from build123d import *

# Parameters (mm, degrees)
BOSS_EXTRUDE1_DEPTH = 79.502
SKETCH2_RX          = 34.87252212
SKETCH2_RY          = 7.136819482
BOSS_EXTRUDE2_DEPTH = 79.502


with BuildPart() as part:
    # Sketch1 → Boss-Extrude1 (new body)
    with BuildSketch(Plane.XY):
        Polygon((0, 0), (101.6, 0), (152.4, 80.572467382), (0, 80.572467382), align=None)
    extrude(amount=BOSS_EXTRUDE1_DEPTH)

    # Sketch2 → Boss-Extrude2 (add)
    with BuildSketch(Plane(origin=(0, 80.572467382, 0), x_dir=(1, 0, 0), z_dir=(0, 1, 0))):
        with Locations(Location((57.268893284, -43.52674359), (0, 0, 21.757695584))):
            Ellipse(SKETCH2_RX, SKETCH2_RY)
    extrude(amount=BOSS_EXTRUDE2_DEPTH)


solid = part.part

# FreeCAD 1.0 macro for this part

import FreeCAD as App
import Part
import Sketcher

V = App.Vector
Q = App.Units.Quantity


def add_polygon(sketch, points):
    """Adds a closed chain of lines whose ends are joined by coincident constraints."""
    first, n = sketch.GeometryCount, len(points)
    for a, b in zip(points, points[1:] + points[:1]):
        sketch.addGeometry(Part.LineSegment(App.Vector(*a, 0), App.Vector(*b, 0)), False)
    for i in range(n):
        sketch.addConstraint(Sketcher.Constraint("Coincident", first + i, 2, first + (i + 1) % n, 1))

doc = App.newDocument("Part")
body = doc.addObject("PartDesign::Body", "Body")

sketch1 = body.newObject("Sketcher::SketchObject", "Sketch")
sketch1.AttachmentSupport = (doc.getObject("XY_Plane"), [""])
sketch1.MapMode = "FlatFace"
add_polygon(sketch1, [(0, 0), (101.6, 0), (152.4, 80.572467), (0, 80.572467)])
sketch1.addConstraint([
    Sketcher.Constraint("Horizontal", 0),
    Sketcher.Constraint("Horizontal", 2),
    Sketcher.Constraint("Vertical", 3),
    Sketcher.Constraint("Coincident", 3, 2, -1, 1),
    Sketcher.Constraint("DistanceX", 0, 1, 0, 2, Q("4 in")),
    Sketcher.Constraint("DistanceX", 2, 2, 2, 1, Q("6 in")),
    Sketcher.Constraint("Distance", 1, Q("3.75 in")),
])
pad1 = body.newObject("PartDesign::Pad", "Pad")
pad1.Profile = sketch1
pad1.Length = Q("3.13 in")

sketch2 = body.newObject("Sketcher::SketchObject", "Sketch001")
sketch2.AttachmentSupport = (doc.getObject("XZ_Plane"), [""])
sketch2.MapMode = "FlatFace"
sketch2.AttachmentOffset = App.Placement(V(0, 0, -80.572467), App.Rotation())
sketch2.addGeometry(Part.Ellipse(V(89.657089, 30.600121, 0), V(59.914385, 50.155134, 0), V(57.268893, 43.526744, 0)), False)
sketch2.addConstraint(Sketcher.Constraint("Block", 0))
pad2 = body.newObject("PartDesign::Pad", "Pad001")
pad2.Profile = sketch2
pad2.Length = Q("3.13 in")
pad2.Reversed = True

doc.recompute()
